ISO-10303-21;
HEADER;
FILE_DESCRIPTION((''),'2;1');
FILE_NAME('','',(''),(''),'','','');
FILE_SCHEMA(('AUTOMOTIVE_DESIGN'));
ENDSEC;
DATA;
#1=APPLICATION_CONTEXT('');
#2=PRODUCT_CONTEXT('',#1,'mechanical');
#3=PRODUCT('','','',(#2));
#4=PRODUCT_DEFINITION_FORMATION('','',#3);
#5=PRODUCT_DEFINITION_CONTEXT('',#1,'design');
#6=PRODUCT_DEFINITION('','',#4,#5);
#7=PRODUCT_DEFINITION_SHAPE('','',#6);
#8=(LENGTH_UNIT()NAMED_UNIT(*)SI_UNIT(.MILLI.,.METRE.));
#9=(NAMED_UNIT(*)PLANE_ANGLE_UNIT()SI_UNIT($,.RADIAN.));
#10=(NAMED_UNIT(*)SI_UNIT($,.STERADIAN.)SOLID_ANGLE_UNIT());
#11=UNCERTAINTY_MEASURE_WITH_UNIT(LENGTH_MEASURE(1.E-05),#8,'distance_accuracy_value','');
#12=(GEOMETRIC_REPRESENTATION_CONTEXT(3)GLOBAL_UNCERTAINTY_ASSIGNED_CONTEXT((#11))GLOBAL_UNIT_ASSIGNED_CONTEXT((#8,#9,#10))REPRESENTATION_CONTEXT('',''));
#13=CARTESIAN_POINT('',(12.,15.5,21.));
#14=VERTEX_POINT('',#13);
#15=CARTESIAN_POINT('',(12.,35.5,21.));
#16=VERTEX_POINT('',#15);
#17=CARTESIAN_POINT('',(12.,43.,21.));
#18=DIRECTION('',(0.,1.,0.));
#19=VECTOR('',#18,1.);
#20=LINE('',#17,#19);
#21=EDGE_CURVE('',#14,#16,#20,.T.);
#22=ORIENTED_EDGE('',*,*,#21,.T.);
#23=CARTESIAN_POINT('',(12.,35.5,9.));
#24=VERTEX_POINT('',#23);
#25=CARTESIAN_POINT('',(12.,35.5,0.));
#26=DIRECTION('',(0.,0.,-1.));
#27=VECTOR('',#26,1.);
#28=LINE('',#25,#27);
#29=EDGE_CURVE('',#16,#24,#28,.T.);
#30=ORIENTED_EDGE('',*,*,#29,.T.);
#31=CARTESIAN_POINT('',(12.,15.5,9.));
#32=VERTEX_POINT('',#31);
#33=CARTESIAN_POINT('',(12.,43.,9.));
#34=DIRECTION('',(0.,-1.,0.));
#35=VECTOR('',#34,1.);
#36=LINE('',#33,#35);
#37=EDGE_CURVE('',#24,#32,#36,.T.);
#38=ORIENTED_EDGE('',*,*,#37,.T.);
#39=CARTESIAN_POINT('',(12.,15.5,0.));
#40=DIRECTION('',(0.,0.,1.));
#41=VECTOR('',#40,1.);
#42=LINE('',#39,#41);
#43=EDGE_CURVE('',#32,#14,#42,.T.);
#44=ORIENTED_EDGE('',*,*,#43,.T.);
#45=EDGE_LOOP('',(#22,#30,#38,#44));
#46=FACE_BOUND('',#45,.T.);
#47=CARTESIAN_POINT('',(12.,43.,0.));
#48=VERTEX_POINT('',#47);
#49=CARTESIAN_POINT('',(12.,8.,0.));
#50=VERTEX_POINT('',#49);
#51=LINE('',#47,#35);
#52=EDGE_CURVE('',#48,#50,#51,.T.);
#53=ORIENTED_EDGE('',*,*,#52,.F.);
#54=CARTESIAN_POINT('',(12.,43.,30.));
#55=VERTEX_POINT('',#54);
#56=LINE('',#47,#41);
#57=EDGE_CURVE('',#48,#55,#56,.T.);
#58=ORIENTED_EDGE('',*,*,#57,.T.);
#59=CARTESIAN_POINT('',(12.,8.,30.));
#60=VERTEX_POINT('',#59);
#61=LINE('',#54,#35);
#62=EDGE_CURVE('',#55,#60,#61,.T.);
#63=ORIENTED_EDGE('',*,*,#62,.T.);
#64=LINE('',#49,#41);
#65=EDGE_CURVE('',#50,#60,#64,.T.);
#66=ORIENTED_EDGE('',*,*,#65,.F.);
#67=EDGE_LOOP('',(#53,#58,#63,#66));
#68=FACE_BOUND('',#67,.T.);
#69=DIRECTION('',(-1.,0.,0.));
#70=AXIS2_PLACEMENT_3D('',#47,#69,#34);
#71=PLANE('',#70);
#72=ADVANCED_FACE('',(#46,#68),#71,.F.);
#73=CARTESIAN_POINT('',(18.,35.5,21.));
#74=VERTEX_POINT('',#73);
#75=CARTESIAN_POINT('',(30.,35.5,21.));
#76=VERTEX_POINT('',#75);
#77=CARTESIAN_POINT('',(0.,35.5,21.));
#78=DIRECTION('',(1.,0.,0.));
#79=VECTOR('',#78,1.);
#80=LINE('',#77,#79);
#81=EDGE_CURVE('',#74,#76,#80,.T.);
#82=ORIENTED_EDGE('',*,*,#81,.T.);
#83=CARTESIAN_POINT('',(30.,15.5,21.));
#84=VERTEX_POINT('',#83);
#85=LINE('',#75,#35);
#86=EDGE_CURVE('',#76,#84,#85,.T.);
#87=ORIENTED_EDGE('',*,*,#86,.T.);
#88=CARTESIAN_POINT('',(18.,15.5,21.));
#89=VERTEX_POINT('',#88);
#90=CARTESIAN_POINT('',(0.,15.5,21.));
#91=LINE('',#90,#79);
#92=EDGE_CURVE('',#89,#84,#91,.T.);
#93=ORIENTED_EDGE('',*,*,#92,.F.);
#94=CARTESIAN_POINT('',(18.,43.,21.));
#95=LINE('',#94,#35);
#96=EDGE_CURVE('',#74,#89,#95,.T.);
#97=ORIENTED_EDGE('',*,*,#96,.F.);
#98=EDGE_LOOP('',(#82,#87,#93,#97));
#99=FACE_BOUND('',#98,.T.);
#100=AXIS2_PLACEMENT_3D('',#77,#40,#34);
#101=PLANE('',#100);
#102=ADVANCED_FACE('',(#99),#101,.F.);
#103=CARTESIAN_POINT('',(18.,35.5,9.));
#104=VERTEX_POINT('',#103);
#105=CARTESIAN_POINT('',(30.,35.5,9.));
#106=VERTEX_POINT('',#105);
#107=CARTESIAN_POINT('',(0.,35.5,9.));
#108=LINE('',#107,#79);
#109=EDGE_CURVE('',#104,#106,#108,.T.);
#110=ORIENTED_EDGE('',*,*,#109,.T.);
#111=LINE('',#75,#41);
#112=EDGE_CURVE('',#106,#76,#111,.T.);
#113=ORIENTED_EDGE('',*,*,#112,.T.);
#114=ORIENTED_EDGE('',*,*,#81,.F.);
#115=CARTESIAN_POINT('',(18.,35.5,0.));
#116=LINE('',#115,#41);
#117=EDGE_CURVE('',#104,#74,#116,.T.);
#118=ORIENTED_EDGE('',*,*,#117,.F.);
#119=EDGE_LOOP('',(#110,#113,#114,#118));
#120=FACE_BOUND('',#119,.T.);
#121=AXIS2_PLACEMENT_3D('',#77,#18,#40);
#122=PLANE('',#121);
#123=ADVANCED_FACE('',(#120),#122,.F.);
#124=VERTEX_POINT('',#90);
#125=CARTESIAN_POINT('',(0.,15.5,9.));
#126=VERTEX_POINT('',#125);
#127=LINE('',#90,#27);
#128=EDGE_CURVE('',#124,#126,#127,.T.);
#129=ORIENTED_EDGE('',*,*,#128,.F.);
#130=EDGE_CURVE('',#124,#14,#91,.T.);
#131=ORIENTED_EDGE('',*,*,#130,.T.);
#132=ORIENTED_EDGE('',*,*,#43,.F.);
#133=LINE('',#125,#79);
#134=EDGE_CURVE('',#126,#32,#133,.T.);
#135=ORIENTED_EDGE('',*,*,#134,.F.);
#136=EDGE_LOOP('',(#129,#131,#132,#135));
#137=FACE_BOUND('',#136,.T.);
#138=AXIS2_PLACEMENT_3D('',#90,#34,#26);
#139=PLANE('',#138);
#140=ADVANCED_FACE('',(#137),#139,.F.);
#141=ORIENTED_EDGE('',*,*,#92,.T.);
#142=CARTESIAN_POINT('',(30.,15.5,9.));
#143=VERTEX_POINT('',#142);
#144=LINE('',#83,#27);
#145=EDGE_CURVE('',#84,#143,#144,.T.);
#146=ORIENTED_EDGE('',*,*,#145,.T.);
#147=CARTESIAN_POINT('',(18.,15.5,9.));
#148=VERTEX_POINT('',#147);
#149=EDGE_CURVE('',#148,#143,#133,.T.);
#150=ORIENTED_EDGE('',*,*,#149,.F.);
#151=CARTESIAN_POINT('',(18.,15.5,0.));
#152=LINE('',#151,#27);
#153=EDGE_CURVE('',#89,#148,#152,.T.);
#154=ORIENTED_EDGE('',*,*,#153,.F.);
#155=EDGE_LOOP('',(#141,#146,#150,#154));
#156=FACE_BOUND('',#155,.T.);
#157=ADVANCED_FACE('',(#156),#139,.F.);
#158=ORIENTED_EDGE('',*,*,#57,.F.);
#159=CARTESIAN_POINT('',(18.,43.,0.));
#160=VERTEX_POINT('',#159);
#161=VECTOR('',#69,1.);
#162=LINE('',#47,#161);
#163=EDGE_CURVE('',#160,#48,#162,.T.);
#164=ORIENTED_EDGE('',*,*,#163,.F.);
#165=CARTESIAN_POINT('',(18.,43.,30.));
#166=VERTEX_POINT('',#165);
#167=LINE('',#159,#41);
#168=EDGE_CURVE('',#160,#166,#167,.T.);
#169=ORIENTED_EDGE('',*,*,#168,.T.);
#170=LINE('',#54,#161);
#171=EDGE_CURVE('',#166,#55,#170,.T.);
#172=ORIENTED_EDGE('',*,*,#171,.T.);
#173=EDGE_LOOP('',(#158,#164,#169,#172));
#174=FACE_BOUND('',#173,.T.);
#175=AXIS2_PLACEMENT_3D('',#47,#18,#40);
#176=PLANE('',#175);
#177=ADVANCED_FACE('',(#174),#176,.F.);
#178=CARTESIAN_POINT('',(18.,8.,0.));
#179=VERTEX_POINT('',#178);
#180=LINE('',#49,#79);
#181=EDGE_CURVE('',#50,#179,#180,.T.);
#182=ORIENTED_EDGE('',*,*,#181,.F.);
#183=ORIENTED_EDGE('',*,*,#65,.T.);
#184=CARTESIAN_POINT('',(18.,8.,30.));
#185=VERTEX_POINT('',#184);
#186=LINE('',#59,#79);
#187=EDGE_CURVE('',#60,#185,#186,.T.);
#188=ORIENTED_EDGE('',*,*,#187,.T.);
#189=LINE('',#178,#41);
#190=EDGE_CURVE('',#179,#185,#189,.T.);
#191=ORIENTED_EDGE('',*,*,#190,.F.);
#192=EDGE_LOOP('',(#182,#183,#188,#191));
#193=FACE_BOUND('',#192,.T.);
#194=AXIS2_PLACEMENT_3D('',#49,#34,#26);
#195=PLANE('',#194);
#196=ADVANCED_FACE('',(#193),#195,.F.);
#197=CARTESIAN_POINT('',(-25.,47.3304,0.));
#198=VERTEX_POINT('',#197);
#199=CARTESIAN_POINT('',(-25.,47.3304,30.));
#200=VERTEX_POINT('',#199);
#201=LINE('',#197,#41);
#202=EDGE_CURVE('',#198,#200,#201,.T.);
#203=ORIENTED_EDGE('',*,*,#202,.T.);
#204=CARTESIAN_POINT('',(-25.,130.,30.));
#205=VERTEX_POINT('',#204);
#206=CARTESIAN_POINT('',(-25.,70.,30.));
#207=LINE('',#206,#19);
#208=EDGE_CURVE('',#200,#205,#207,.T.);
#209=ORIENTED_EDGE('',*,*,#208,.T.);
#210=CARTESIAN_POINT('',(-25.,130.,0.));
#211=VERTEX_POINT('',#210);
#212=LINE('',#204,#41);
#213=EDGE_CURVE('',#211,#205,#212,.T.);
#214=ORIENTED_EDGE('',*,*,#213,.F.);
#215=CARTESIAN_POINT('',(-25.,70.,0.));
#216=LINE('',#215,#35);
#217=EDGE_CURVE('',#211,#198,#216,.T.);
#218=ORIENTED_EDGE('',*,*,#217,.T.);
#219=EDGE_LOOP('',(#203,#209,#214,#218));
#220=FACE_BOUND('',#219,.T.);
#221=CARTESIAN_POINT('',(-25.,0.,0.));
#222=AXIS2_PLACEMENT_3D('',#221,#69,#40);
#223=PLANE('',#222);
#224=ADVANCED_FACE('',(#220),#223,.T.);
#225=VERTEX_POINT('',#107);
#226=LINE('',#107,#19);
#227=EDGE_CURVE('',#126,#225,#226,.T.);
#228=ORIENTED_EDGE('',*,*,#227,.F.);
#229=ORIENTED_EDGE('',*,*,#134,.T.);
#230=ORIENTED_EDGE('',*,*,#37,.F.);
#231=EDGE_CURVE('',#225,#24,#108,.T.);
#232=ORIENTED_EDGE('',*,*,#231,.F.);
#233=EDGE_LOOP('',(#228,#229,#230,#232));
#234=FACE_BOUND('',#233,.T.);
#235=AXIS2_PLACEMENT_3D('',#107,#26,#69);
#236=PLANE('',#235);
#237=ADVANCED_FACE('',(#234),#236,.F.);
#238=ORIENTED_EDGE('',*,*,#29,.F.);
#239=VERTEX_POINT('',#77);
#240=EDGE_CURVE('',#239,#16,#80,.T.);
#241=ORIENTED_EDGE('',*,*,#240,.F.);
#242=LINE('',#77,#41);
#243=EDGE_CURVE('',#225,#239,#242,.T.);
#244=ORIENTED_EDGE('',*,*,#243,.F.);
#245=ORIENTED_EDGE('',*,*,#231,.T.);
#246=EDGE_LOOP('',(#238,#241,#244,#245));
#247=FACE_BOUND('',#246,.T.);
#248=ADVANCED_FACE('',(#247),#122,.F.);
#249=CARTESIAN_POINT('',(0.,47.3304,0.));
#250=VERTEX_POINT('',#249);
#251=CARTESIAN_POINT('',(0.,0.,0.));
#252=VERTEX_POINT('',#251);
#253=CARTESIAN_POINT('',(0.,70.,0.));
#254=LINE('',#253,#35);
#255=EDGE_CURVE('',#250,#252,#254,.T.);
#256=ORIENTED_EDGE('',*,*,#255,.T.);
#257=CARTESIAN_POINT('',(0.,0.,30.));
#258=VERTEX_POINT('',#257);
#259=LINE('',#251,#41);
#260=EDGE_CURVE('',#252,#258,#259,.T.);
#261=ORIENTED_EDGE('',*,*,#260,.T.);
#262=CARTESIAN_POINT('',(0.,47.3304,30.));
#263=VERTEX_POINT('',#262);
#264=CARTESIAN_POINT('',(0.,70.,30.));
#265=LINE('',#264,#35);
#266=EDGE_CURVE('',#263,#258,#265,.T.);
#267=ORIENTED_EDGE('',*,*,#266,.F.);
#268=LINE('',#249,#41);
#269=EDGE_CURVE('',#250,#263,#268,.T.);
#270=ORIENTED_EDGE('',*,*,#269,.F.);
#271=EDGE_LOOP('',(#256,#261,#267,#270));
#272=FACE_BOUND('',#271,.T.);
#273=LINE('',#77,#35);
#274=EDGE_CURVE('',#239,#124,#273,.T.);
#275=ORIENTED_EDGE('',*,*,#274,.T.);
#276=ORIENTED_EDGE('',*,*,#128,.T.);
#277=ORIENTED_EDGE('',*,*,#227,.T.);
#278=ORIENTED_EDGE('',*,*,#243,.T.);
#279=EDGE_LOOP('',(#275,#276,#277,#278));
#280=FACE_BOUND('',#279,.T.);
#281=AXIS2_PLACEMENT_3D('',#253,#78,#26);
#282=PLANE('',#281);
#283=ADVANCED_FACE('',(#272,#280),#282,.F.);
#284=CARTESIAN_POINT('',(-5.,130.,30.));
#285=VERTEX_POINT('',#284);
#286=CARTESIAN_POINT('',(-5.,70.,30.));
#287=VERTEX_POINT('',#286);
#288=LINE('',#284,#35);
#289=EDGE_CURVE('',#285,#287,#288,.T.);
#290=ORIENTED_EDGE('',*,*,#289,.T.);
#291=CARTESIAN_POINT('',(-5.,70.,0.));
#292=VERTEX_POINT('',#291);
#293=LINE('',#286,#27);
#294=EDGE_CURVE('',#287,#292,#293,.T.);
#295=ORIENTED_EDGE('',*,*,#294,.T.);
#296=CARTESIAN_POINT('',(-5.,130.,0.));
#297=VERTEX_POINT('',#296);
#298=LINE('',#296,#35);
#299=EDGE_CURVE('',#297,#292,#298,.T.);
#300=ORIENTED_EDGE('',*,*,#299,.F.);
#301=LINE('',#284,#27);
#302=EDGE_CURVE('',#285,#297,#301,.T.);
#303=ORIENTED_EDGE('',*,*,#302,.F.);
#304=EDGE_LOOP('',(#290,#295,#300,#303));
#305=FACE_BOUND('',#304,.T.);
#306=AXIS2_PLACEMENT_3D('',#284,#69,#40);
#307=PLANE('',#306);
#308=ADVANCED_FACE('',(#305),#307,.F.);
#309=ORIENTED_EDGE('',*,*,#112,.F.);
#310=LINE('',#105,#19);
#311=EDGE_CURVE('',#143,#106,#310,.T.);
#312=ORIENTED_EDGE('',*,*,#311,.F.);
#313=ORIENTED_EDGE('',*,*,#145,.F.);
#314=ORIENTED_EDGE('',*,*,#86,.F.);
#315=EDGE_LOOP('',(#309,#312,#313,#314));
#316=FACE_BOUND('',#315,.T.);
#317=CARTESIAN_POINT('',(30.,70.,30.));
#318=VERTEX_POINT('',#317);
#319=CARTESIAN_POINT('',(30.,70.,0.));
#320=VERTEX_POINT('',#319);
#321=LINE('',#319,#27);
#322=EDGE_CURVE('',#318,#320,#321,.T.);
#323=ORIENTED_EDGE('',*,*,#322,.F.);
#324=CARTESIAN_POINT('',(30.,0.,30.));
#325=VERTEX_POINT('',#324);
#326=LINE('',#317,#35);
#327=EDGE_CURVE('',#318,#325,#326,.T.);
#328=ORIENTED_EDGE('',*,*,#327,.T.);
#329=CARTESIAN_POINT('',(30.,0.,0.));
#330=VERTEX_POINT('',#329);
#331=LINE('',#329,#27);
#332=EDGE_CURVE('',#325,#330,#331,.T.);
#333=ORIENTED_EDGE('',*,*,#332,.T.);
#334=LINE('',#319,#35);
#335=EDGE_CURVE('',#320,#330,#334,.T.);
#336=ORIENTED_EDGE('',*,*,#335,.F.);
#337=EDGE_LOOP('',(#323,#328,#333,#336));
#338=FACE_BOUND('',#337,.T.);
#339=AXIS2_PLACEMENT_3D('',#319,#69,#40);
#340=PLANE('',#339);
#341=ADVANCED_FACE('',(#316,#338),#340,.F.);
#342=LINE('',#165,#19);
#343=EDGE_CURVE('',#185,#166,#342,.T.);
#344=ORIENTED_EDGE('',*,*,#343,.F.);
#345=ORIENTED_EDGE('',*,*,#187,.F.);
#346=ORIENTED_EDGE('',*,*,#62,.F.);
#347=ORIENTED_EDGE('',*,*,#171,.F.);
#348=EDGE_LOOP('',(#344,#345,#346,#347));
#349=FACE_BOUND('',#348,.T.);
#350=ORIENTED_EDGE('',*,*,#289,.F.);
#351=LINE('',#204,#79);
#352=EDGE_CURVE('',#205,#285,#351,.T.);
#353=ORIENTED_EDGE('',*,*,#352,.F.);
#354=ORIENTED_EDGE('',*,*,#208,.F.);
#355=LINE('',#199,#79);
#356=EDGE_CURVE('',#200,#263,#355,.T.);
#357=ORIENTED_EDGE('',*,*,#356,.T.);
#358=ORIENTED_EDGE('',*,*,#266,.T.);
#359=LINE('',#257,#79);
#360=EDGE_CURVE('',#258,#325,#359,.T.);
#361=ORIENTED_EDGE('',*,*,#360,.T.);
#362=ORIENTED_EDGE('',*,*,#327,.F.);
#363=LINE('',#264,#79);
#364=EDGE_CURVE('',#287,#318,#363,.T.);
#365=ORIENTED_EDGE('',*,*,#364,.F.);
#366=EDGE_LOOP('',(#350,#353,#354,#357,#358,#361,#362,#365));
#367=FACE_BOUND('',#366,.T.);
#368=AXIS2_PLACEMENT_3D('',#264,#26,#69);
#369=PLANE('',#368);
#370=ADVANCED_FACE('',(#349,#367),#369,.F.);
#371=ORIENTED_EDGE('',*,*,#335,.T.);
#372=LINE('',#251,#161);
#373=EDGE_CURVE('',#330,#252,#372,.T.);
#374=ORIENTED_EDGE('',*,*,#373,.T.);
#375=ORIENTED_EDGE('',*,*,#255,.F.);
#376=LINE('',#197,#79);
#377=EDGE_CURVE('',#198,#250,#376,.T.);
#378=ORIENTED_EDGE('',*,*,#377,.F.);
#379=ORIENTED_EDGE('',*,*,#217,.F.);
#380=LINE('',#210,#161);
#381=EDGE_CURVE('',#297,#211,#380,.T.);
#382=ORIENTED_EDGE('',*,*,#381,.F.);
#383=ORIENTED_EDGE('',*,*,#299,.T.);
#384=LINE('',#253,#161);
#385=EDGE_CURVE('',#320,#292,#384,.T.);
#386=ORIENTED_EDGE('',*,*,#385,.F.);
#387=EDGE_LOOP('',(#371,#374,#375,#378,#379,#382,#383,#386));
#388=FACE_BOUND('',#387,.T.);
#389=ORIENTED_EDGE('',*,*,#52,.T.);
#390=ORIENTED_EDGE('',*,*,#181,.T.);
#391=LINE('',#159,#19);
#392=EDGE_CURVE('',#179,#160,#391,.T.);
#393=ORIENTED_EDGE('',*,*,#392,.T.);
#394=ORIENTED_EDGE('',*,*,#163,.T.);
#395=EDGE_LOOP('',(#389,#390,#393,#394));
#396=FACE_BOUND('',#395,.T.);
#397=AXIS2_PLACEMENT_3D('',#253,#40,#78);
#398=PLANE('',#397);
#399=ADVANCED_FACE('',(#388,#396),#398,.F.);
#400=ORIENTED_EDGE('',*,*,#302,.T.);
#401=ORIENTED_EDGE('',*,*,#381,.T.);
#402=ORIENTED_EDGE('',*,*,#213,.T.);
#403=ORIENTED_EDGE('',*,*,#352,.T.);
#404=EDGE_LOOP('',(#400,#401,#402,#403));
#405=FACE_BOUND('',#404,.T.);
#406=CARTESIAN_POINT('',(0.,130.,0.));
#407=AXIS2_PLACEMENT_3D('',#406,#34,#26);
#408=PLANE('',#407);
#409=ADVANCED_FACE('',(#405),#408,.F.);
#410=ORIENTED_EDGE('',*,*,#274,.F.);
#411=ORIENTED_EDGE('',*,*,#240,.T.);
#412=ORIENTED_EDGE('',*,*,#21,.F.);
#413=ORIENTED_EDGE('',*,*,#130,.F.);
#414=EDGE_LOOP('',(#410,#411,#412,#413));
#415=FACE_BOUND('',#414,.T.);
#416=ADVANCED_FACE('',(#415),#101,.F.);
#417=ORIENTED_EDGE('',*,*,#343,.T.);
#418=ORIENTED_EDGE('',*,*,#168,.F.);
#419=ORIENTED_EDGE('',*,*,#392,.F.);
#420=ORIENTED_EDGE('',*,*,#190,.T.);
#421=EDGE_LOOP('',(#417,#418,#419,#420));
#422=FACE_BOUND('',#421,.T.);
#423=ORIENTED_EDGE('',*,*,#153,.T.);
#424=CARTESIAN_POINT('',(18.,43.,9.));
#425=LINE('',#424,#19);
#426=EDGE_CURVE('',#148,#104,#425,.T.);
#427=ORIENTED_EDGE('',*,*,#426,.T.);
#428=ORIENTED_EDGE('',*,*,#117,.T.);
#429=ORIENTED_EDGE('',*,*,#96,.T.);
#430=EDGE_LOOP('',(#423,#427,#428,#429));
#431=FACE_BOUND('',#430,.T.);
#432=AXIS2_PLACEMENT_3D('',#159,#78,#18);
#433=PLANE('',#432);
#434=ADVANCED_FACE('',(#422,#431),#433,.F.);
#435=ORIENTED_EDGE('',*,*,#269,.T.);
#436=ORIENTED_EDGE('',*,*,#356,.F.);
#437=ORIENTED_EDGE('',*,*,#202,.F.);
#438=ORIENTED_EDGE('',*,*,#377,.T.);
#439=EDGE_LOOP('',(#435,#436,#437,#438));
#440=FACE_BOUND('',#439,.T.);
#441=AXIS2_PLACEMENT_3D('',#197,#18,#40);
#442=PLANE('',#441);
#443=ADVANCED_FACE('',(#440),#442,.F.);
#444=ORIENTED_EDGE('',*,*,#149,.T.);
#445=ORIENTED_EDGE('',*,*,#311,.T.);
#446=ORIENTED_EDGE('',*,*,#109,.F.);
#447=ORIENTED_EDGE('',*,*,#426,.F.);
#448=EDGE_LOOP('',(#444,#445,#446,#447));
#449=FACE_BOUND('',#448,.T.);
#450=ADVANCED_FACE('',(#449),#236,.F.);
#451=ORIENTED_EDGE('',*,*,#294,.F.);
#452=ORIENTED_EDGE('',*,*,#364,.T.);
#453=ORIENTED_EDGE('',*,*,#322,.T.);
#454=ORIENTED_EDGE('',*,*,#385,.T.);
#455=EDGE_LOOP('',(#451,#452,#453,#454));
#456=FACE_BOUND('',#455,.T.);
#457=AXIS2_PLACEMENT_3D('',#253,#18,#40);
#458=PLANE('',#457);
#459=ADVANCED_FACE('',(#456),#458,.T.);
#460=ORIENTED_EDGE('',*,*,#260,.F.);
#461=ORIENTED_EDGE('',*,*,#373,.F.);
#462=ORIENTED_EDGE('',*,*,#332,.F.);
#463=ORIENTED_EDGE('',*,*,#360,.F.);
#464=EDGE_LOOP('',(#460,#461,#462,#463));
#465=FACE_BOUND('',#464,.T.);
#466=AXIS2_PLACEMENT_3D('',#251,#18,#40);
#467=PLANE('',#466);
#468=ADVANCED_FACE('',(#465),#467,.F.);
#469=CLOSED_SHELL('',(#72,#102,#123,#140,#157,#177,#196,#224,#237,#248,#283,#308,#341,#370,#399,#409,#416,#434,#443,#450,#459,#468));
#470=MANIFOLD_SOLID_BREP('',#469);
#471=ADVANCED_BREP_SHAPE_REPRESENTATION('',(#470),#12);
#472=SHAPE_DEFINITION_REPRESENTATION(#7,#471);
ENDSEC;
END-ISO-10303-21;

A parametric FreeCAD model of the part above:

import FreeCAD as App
import Part
import Sketcher
from FreeCAD import Vector
Q = App.Units.Quantity


def add_polygon(sketch, points):
    """Adds a closed chain of lines whose ends are joined by coincident constraints."""
    first, n = sketch.GeometryCount, len(points)
    for a, b in zip(points, points[1:] + points[:1]):
        sketch.addGeometry(Part.LineSegment(App.Vector(*a, 0), App.Vector(*b, 0)), False)
    for i in range(n):
        sketch.addConstraint(Sketcher.Constraint("Coincident", first + i, 2, first + (i + 1) % n, 1))

doc = App.newDocument("Part")
body = doc.addObject("PartDesign::Body", "Body")

# Sketch on XZ plane
sketch1 = doc.addObject("Sketcher::SketchObject", "Sketch")
body.addObject(sketch1)
sketch1.AttachmentSupport = (doc.XZ_Plane, [""])
sketch1.MapMode = "FlatFace"
add_polygon(sketch1, [(0, 0), (0, 30), (30, 30), (30, 0)])  # lines 0-3
sketch1.addConstraint([
    Sketcher.Constraint("Vertical", 0),
    Sketcher.Constraint("Horizontal", 1),
    Sketcher.Constraint("Vertical", 2),
    Sketcher.Constraint("Horizontal", 3),
    Sketcher.Constraint("Coincident", 3, 2, -1, 1),
    Sketcher.Constraint("Equal", 3, 0),
    Sketcher.Constraint("DistanceX", 1, 1, 1, 2, Q("30 mm")),
])
pad1 = doc.addObject("PartDesign::Pad", "Pad")
body.addObject(pad1)
pad1.Profile = sketch1
pad1.Length = 70
pad1.Reversed = True

# Sketch on XY plane
sketch2 = doc.addObject("Sketcher::SketchObject", "Sketch001")
body.addObject(sketch2)
sketch2.AttachmentSupport = (doc.XY_Plane, [""])
sketch2.MapMode = "FlatFace"
sketch2.AttachmentOffset = App.Placement(Vector(0, 0, 30), App.Rotation())
add_polygon(sketch2, [(12, 43), (12, 8), (18, 8), (18, 43)])  # lines 0-3
sketch2.addConstraint([
    Sketcher.Constraint("Vertical", 0),
    Sketcher.Constraint("Horizontal", 1),
    Sketcher.Constraint("Vertical", 2),
    Sketcher.Constraint("Horizontal", 3),
    Sketcher.Constraint("DistanceX", 1, 1, 1, 2, Q("6 mm")),
    Sketcher.Constraint("DistanceY", 0, 2, 0, 1, Q("35 mm")),
    Sketcher.Constraint("DistanceX", -1, 1, 0, 2, Q("12 mm")),
    Sketcher.Constraint("DistanceY", -1, 1, 0, 2, Q("8 mm")),
])
pocket1 = doc.addObject("PartDesign::Pocket", "Pocket")
body.addObject(pocket1)
pocket1.Profile = sketch2
pocket1.Type = "ThroughAll"

# Sketch on YZ plane
sketch3 = doc.addObject("Sketcher::SketchObject", "Sketch002")
body.addObject(sketch3)
sketch3.AttachmentSupport = (doc.YZ_Plane, [""])
sketch3.MapMode = "FlatFace"
sketch3.AttachmentOffset = App.Placement(Vector(0, 0, 30), App.Rotation())
add_polygon(sketch3, [(36, 21), (16, 21), (16, 9), (36, 9)])  # lines 0-3
sketch3.addConstraint([
    Sketcher.Constraint("Horizontal", 0),
    Sketcher.Constraint("Vertical", 1),
    Sketcher.Constraint("Horizontal", 2),
    Sketcher.Constraint("Vertical", 3),
    Sketcher.Constraint("DistanceX", 0, 2, 0, 1, Q("20 mm")),
    Sketcher.Constraint("DistanceY", 1, 2, 1, 1, Q("12 mm")),
    Sketcher.Constraint("DistanceY", -1, 1, 0, 2, Q("21 mm")),
    Sketcher.Constraint("DistanceX", -1, 1, 0, 2, Q("15.5 mm")),
])
pocket2 = doc.addObject("PartDesign::Pocket", "Pocket001")
body.addObject(pocket2)
pocket2.Profile = sketch3
pocket2.Type = "ThroughAll"

# Sketch on YZ plane
sketch4 = doc.addObject("Sketcher::SketchObject", "Sketch003")
body.addObject(sketch4)
sketch4.AttachmentSupport = (doc.YZ_Plane, [""])
sketch4.MapMode = "FlatFace"
add_polygon(sketch4, [(70, 0), (47, 0), (47, 30), (70, 30)])  # lines 0-3
sketch4.addConstraint([
    Sketcher.Constraint("Horizontal", 0),
    Sketcher.Constraint("Vertical", 1),
    Sketcher.Constraint("Horizontal", 2),
    Sketcher.Constraint("Vertical", 3),
    Sketcher.Constraint("PointOnObject", 0, 2, -1),
    Sketcher.Constraint("DistanceY", 1, 1, 1, 2, Q("30 mm")),
    Sketcher.Constraint("DistanceX", -1, 1, 2, 2, Q("70 mm")),
    Sketcher.Constraint("DistanceX", 0, 2, 0, 1, Q("22.6696 mm")),
])
pad2 = doc.addObject("PartDesign::Pad", "Pad001")
body.addObject(pad2)
pad2.Profile = sketch4
pad2.Length = 25
pad2.Reversed = True

# Sketch on XZ plane
sketch5 = doc.addObject("Sketcher::SketchObject", "Sketch004")
body.addObject(sketch5)
sketch5.AttachmentSupport = (doc.XZ_Plane, [""])
sketch5.MapMode = "FlatFace"
sketch5.AttachmentOffset = App.Placement(Vector(0, 0, -70), App.Rotation())
add_polygon(sketch5, [(-25, 0), (-25, 30), (-5, 30), (-5, 0)])  # lines 0-3
sketch5.addConstraint([
    Sketcher.Constraint("Vertical", 0),
    Sketcher.Constraint("Horizontal", 1),
    Sketcher.Constraint("Vertical", 2),
    Sketcher.Constraint("Horizontal", 3),
    Sketcher.Constraint("PointOnObject", 2, 2, -1),
    Sketcher.Constraint("DistanceX", 1, 1, 1, 2, Q("20 mm")),
    Sketcher.Constraint("DistanceY", 0, 1, 0, 2, Q("30 mm")),
    Sketcher.Constraint("DistanceX", 0, 2, -1, 1, Q("25 mm")),
])
pad3 = doc.addObject("PartDesign::Pad", "Pad002")
body.addObject(pad3)
pad3.Profile = sketch5
pad3.Length = 60
pad3.Reversed = True

doc.recompute()
